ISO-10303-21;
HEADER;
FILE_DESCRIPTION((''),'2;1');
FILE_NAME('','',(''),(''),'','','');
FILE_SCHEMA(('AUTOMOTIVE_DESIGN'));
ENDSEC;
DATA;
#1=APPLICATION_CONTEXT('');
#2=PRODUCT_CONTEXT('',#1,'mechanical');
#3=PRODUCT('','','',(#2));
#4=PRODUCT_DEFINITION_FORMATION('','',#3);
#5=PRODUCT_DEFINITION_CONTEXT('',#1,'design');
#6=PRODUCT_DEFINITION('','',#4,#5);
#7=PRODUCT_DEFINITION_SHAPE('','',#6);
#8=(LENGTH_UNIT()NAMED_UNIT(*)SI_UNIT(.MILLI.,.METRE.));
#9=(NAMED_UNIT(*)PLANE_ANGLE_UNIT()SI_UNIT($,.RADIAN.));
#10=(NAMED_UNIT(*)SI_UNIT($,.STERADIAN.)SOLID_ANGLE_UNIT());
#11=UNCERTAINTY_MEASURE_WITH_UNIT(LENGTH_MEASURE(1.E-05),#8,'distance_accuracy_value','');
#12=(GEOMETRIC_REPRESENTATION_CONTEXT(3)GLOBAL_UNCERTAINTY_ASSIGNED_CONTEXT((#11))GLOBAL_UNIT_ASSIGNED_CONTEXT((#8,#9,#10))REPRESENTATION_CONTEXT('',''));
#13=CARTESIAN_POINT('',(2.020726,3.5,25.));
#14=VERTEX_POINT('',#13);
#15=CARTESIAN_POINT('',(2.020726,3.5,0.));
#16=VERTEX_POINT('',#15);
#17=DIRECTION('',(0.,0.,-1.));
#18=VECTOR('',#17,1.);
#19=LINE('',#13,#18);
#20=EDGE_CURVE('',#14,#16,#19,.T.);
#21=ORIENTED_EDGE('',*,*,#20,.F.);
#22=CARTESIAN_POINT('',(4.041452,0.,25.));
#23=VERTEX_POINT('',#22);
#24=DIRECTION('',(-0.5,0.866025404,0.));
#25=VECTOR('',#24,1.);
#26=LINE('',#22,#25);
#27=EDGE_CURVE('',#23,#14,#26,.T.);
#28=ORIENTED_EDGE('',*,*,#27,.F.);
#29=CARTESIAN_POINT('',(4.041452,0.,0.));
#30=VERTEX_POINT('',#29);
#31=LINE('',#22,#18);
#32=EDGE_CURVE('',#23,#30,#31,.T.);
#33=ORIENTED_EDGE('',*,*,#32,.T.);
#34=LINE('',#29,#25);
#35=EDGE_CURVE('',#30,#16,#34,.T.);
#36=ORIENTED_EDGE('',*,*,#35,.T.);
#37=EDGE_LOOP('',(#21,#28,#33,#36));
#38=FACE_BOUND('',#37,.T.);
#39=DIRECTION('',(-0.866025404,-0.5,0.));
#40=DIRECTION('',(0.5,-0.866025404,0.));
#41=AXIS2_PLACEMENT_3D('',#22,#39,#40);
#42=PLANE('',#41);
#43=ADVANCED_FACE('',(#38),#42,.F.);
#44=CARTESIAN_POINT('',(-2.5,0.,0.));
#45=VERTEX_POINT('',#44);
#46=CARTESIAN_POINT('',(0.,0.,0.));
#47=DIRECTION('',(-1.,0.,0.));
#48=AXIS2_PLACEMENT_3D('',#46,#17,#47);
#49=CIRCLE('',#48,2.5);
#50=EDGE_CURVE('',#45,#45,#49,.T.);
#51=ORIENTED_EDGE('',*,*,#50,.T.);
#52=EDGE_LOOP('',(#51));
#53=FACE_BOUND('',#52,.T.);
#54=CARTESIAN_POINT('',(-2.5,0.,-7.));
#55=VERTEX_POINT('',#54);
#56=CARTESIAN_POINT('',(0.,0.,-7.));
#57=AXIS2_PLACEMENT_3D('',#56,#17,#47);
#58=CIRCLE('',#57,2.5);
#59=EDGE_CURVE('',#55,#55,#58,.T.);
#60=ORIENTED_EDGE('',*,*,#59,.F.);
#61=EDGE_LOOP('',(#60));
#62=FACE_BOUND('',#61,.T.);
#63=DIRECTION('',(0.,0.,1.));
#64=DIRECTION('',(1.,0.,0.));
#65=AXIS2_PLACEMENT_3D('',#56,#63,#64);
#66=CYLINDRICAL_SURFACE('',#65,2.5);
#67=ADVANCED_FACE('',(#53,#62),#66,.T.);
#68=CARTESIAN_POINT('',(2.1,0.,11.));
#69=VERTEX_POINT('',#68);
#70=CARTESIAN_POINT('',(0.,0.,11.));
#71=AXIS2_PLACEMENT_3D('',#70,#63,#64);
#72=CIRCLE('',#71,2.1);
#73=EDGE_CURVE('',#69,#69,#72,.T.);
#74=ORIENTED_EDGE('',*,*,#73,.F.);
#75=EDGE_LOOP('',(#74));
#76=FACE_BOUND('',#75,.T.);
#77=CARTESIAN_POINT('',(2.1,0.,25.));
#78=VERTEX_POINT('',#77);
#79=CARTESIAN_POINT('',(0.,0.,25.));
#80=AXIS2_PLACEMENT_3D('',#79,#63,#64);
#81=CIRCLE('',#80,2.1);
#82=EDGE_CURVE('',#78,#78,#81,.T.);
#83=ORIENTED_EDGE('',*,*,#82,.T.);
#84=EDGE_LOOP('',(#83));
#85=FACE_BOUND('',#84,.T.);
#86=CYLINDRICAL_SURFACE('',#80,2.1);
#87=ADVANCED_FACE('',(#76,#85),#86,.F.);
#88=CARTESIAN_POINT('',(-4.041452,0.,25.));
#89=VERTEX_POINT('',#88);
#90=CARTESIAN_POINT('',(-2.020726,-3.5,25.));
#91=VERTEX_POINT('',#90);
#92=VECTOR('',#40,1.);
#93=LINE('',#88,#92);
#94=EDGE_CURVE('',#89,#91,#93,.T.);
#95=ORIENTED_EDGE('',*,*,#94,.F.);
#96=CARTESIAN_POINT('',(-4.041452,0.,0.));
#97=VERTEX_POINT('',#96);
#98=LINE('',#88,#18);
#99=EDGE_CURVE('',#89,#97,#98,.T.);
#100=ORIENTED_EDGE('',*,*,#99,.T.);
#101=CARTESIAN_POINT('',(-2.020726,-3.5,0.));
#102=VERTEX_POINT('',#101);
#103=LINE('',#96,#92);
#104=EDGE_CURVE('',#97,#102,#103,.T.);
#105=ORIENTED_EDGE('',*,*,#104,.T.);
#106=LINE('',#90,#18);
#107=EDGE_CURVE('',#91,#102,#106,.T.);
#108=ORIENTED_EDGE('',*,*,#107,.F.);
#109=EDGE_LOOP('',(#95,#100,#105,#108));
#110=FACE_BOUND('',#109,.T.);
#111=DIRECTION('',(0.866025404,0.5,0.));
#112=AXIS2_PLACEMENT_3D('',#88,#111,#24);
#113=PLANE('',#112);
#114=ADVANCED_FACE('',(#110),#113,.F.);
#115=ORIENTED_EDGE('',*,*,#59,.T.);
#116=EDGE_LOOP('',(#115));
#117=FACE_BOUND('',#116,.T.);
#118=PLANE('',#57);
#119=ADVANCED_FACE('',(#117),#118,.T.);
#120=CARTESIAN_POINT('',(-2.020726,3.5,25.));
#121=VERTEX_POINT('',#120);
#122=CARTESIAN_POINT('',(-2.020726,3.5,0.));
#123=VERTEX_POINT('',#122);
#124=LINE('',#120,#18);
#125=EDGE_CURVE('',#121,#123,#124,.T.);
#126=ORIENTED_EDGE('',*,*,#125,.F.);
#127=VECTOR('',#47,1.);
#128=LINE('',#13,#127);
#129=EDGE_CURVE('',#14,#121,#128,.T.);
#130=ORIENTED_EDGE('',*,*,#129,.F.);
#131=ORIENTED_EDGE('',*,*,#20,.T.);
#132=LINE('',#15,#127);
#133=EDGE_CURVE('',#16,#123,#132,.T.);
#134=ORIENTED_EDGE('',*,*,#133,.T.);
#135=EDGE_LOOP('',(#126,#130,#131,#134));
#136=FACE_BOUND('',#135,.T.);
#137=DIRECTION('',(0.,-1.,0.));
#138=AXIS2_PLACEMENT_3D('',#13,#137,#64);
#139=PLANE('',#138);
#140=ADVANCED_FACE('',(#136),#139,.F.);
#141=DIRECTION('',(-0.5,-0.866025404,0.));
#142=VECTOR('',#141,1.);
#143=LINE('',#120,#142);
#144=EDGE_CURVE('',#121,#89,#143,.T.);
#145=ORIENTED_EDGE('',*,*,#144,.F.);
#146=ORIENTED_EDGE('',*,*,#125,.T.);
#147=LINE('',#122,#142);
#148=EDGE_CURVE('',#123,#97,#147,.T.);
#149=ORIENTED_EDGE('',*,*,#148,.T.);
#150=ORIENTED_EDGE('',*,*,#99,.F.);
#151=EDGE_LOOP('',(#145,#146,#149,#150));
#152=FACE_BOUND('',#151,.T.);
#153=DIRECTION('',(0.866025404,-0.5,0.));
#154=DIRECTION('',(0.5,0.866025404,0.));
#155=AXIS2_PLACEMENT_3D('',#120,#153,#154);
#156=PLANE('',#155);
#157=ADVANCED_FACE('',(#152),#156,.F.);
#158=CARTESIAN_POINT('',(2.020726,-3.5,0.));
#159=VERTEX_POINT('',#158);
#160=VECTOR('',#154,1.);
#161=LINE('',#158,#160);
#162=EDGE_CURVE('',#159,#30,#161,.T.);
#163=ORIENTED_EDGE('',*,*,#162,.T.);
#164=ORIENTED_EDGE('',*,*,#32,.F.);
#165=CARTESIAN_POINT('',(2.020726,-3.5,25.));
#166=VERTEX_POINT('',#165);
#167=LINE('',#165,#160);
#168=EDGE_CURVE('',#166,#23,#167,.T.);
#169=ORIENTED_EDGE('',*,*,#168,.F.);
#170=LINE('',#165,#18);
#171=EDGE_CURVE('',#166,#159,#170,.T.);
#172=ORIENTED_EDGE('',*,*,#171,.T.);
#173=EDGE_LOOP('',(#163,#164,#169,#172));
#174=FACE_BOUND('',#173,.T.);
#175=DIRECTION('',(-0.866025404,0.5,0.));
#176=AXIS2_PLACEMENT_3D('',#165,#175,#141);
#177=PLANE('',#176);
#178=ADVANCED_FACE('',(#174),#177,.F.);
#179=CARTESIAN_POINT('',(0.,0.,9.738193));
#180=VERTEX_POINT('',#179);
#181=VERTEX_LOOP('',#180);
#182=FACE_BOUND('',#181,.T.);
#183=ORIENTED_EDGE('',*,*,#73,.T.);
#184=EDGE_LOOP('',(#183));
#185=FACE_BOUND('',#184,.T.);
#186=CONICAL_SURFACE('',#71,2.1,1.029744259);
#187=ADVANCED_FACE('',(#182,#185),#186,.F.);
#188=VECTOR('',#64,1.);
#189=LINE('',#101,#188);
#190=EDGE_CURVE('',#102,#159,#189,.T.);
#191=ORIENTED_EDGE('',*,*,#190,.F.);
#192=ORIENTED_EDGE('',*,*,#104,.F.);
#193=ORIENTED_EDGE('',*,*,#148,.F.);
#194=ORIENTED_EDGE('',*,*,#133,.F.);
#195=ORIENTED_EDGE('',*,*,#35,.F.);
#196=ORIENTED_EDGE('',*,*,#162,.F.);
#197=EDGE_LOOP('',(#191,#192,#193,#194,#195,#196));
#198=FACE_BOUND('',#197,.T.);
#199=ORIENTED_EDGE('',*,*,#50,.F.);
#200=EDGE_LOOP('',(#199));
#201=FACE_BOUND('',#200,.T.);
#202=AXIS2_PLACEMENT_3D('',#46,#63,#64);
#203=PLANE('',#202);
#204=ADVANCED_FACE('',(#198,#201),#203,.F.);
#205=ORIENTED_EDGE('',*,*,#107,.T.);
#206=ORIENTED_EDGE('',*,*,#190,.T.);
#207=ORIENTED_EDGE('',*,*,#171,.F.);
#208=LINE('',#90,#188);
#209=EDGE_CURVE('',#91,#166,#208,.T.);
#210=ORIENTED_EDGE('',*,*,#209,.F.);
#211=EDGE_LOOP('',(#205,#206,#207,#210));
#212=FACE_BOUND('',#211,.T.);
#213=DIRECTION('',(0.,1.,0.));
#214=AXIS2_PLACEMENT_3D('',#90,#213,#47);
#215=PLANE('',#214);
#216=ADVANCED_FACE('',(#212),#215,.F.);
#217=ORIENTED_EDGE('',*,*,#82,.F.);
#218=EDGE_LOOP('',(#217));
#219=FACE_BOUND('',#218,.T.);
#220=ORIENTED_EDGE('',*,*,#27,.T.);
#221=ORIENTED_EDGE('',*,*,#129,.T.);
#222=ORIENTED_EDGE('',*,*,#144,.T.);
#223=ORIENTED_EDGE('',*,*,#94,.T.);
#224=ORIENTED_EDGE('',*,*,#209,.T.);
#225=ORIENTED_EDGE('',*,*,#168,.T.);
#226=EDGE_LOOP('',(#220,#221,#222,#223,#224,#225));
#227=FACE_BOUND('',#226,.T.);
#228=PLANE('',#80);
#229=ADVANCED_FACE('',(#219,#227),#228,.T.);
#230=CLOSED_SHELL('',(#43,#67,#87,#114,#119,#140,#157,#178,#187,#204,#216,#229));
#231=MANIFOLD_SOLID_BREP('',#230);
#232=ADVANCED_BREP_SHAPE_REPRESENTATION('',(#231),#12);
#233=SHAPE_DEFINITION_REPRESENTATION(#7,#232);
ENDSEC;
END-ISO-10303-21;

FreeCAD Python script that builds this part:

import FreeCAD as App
import Part
import Sketcher
Q = App.Units.Quantity


def add_polygon(sketch, points):
    """Adds a closed chain of lines whose ends are joined by coincident constraints."""
    first, n = sketch.GeometryCount, len(points)
    for a, b in zip(points, points[1:] + points[:1]):
        sketch.addGeometry(Part.LineSegment(App.Vector(*a, 0), App.Vector(*b, 0)), False)
    for i in range(n):
        sketch.addConstraint(Sketcher.Constraint("Coincident", first + i, 2, first + (i + 1) % n, 1))

doc = App.newDocument("Part")
body = doc.addObject("PartDesign::Body", "Body")

# Sketch on XY plane
sketch1 = doc.addObject("Sketcher::SketchObject", "Sketch")
body.addObject(sketch1)
sketch1.AttachmentSupport = (doc.XY_Plane, [""])
sketch1.MapMode = "FlatFace"
add_polygon(sketch1, [(-2, 3.5), (-4, 0), (-2, -3.5), (2, -3.5), (4, 0), (2, 3.5)])  # lines 0-5
sketch1.addConstraint([
    Sketcher.Constraint("Horizontal", 2),
    Sketcher.Constraint("Horizontal", 5),
    Sketcher.Constraint("Symmetric", 0, 2, 3, 2, -1, 1),
    Sketcher.Constraint("Symmetric", 1, 2, 4, 2, -1, 1),
    Sketcher.Constraint("PointOnObject", 0, 2, -1),
    Sketcher.Constraint("Parallel", 0, 3),
    Sketcher.Constraint("Vertical", 2, 2, 4, 2),
    Sketcher.Constraint("Angle", 0, Q("-120 deg")),
    Sketcher.Constraint("DistanceY", 2, 2, 4, 2, Q("7 mm")),
    Sketcher.Constraint("DistanceX", 2, 1, 2, 2, Q("4.041452 mm")),
])
pad1 = doc.addObject("PartDesign::Pad", "Pad")
body.addObject(pad1)
pad1.Profile = sketch1
pad1.Length = 25

# Sketch on XY plane
sketch2 = doc.addObject("Sketcher::SketchObject", "Sketch001")
body.addObject(sketch2)
sketch2.AttachmentSupport = (doc.XY_Plane, [""])
sketch2.MapMode = "FlatFace"
sketch2.addGeometry(Part.Circle(App.Vector(0, 0, 0), App.Vector(0, 0, 1), 2.5), False)
sketch2.addConstraint([
    Sketcher.Constraint("Coincident", 0, 3, -1, 1),
    Sketcher.Constraint("Diameter", 0, Q("5 mm")),
])
pad2 = doc.addObject("PartDesign::Pad", "Pad001")
body.addObject(pad2)
pad2.Profile = sketch2
pad2.Length = 7
pad2.Reversed = True

# Sketch on XY plane
sketch3 = doc.addObject("Sketcher::SketchObject", "Sketch002")
body.addObject(sketch3)
sketch3.AttachmentSupport = (doc.XY_Plane, [""])
sketch3.MapMode = "FlatFace"
sketch3.AttachmentOffset = App.Placement(App.Vector(0, 0, 25), App.Rotation())
sketch3.addGeometry(Part.Circle(App.Vector(0, 0, 0), App.Vector(0, 0, 1), 2.1), False)
sketch3.addConstraint([
    Sketcher.Constraint("Coincident", 0, 3, -1, 1),
    Sketcher.Constraint("Diameter", 0, Q("4.2 mm")),
])
doc.recompute()
hole = doc.addObject("PartDesign::Hole", "Hole")
body.addObject(hole)
hole.Profile = sketch3
hole.ThreadType = "None"
hole.Diameter = 4.2
hole.DepthType = "Dimension"
hole.Depth = 14
hole.DrillPoint = "Angled"
hole.DrillPointAngle = 118

doc.recompute()
